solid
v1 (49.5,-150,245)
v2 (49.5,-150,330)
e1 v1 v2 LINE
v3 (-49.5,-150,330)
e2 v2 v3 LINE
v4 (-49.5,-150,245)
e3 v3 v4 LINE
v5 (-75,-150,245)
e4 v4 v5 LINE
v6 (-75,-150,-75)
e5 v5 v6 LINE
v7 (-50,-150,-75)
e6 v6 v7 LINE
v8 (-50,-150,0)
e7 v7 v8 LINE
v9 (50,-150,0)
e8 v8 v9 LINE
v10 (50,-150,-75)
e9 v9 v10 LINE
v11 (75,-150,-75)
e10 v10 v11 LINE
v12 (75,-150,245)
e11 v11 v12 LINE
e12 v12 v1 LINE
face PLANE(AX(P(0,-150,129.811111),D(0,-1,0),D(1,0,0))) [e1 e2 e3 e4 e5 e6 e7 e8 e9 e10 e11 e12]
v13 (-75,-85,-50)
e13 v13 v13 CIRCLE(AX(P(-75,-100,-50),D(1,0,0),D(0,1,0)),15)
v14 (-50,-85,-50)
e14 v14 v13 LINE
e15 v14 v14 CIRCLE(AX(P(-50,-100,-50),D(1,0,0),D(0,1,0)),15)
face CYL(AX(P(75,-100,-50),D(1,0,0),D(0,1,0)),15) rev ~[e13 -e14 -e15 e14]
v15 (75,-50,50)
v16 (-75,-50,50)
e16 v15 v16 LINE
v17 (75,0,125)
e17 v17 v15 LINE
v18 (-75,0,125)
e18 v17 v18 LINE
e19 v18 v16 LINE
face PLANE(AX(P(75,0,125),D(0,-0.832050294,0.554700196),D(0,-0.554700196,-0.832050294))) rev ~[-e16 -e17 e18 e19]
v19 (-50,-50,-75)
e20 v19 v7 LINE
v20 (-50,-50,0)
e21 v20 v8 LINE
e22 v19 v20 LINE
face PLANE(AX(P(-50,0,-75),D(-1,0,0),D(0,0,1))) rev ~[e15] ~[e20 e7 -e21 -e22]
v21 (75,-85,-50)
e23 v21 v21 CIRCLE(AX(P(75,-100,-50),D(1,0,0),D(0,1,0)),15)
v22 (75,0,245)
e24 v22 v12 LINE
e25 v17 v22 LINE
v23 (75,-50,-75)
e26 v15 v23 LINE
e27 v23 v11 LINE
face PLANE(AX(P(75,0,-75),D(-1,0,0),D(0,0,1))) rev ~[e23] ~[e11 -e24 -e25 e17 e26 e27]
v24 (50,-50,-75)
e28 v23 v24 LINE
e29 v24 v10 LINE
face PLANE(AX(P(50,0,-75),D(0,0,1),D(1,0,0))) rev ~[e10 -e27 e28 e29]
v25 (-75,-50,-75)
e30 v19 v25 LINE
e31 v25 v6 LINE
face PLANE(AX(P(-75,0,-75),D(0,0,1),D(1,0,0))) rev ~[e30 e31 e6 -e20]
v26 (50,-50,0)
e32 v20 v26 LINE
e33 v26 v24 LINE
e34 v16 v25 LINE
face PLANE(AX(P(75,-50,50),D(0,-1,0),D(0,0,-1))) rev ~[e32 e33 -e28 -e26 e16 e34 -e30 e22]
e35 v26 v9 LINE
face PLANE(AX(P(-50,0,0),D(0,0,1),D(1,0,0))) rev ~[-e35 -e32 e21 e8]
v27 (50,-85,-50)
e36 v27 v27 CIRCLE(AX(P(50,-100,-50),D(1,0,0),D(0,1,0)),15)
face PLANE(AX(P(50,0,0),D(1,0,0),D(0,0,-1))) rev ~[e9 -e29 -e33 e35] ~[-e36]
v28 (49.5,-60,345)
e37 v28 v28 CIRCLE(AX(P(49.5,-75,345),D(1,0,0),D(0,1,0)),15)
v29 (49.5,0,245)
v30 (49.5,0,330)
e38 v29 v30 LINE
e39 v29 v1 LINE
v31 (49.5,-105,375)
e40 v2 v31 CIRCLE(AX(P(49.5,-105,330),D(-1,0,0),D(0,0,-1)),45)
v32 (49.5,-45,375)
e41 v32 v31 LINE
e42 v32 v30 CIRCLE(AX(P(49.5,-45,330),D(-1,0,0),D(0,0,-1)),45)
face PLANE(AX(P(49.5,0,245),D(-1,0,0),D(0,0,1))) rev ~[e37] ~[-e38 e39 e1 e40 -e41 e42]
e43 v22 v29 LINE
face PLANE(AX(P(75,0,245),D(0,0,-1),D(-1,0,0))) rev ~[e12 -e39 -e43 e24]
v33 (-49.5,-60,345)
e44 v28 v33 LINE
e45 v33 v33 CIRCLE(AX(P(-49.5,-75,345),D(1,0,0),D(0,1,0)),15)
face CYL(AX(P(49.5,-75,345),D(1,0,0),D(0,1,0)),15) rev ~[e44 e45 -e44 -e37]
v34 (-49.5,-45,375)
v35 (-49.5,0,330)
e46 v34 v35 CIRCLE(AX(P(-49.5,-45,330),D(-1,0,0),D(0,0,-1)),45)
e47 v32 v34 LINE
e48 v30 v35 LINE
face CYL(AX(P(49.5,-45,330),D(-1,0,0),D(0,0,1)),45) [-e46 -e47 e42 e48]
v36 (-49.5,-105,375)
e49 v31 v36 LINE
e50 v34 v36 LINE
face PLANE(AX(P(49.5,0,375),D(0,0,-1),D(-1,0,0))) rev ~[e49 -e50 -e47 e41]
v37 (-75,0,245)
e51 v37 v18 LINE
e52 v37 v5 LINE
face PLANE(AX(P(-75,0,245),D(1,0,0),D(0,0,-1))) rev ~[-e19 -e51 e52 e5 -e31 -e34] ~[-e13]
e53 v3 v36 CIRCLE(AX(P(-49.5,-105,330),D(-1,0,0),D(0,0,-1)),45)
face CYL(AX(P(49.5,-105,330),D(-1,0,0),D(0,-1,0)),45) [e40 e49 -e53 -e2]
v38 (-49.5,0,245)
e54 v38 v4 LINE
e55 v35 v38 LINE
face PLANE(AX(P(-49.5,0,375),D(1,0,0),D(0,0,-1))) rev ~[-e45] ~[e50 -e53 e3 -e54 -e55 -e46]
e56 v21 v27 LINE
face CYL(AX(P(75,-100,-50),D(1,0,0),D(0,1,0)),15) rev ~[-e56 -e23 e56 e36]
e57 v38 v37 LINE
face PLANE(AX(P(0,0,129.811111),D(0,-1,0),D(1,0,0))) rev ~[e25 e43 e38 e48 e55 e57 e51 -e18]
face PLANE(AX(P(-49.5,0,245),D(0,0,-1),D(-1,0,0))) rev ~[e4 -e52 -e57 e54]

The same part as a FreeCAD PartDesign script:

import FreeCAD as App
import Part
import Sketcher


def edges_at(feature, points):
    """Names of the edges that pass closest to the given points."""
    edges = feature.Shape.Edges
    near = lambda p: min(range(len(edges)), key=lambda i: edges[i].distToShape(Part.Vertex(*p))[0])
    return sorted({f"Edge{near(p) + 1}" for p in points})

doc = App.newDocument("Part")
body = doc.addObject("PartDesign::Body", "Body")

# Sketch on XZ plane
sketch1 = body.newObject("Sketcher::SketchObject", "Sketch")
sketch1.AttachmentSupport = (doc.getObject("XZ_Plane"), [""])
sketch1.MapMode = "FlatFace"
sketch1.addGeometry([
    Part.LineSegment(App.Vector(-50, 0, 0), App.Vector(50, 0, 0)),  # 0
    Part.LineSegment(App.Vector(50, 0, 0), App.Vector(50, -75, 0)),  # 1
    Part.LineSegment(App.Vector(50, -75, 0), App.Vector(75, -75, 0)),  # 2
    Part.LineSegment(App.Vector(75, -75, 0), App.Vector(75, 245, 0)),  # 3
    Part.LineSegment(App.Vector(75, 245, 0), App.Vector(50, 245, 0)),  # 4
    Part.LineSegment(App.Vector(50, 245, 0), App.Vector(50, 375, 0)),  # 5
    Part.LineSegment(App.Vector(50, 375, 0), App.Vector(-50, 375, 0)),  # 6
    Part.LineSegment(App.Vector(-50, 375, 0), App.Vector(-50, 245, 0)),  # 7
    Part.LineSegment(App.Vector(-50, 245, 0), App.Vector(-75, 245, 0)),  # 8
    Part.LineSegment(App.Vector(-75, 245, 0), App.Vector(-75, -75, 0)),  # 9
    Part.LineSegment(App.Vector(-75, -75, 0), App.Vector(-50, -75, 0)),  # 10
    Part.LineSegment(App.Vector(-50, -75, 0), App.Vector(-50, 0, 0)),  # 11
], False)
sketch1.addConstraint([
    Sketcher.Constraint("Coincident", 0, 2, 1, 1),
    Sketcher.Constraint("Coincident", 1, 2, 2, 1),
    Sketcher.Constraint("Coincident", 2, 2, 3, 1),
    Sketcher.Constraint("Coincident", 3, 2, 4, 1),
    Sketcher.Constraint("Coincident", 4, 2, 5, 1),
    Sketcher.Constraint("Coincident", 5, 2, 6, 1),
    Sketcher.Constraint("Coincident", 6, 2, 7, 1),
    Sketcher.Constraint("Coincident", 7, 2, 8, 1),
    Sketcher.Constraint("Coincident", 8, 2, 9, 1),
    Sketcher.Constraint("Coincident", 9, 2, 10, 1),
    Sketcher.Constraint("Coincident", 10, 2, 11, 1),
    Sketcher.Constraint("Coincident", 11, 2, 0, 1),
    Sketcher.Constraint("Horizontal", 0),
    Sketcher.Constraint("Vertical", 1),
    Sketcher.Constraint("Horizontal", 2),
    Sketcher.Constraint("Vertical", 3),
    Sketcher.Constraint("Horizontal", 4),
    Sketcher.Constraint("Vertical", 5),
    Sketcher.Constraint("Horizontal", 6),
    Sketcher.Constraint("Vertical", 7),
    Sketcher.Constraint("Horizontal", 8),
    Sketcher.Constraint("Vertical", 9),
    Sketcher.Constraint("Horizontal", 10),
    Sketcher.Constraint("Vertical", 11),
    Sketcher.Constraint("Symmetric", 0, 2, 11, 2, -1, 1),
    Sketcher.Constraint("Symmetric", 4, 2, 7, 2, -2),
    Sketcher.Constraint("Symmetric", 2, 2, 9, 2, -2),
    Sketcher.Constraint("DistanceX", 0, 1, 0, 2, 100.0),
    Sketcher.Constraint("DistanceX", 2, 1, 2, 2, 25.0),
    Sketcher.Constraint("DistanceX", 6, 2, 6, 1, 99.0),
    Sketcher.Constraint("DistanceY", 1, 2, 1, 1, 75.0),
    Sketcher.Constraint("DistanceY", 3, 1, 3, 2, 320.0),
    Sketcher.Constraint("DistanceY", 5, 1, 5, 2, 130.0),
])
pad1 = body.newObject("PartDesign::Pad", "Pad")
pad1.Profile = sketch1
pad1.Length = 150

# Sketch on YZ plane
sketch2 = body.newObject("Sketcher::SketchObject", "Sketch001")
sketch2.AttachmentSupport = (doc.getObject("YZ_Plane"), [""])
sketch2.MapMode = "FlatFace"
sketch2.AttachmentOffset = App.Placement(App.Vector(0, 0, 75), App.Rotation())
sketch2.addGeometry([
    Part.LineSegment(App.Vector(-50, 50, 0), App.Vector(-50, -75, 0)),
    Part.LineSegment(App.Vector(-50, -75, 0), App.Vector(0, -75, 0)),
    Part.LineSegment(App.Vector(0, -75, 0), App.Vector(0, 125, 0)),
    Part.LineSegment(App.Vector(0, 125, 0), App.Vector(-50, 50, 0)),
], False)
sketch2.addConstraint([
    Sketcher.Constraint("Coincident", 0, 2, 1, 1),
    Sketcher.Constraint("Coincident", 1, 2, 2, 1),
    Sketcher.Constraint("Coincident", 2, 2, 3, 1),
    Sketcher.Constraint("Coincident", 3, 2, 0, 1),
    Sketcher.Constraint("Vertical", 0),
    Sketcher.Constraint("Horizontal", 1),
    Sketcher.Constraint("Vertical", 2),
    Sketcher.Constraint("PointOnObject", 1, 2, -2),
    Sketcher.Constraint("DistanceX", 1, 1, 1, 2, 50.0),
    Sketcher.Constraint("DistanceY", 0, 2, 0, 1, 125.0),
    Sketcher.Constraint("DistanceY", 2, 1, 2, 2, 200.0),
    Sketcher.Constraint("DistanceY", 0, 2, -1, 1, 75.0),
])
pocket1 = body.newObject("PartDesign::Pocket", "Pocket")
pocket1.Profile = sketch2
pocket1.Length = 188
doc.recompute()

fillet = body.newObject("PartDesign::Fillet", "Fillet")
fillet.Base = (pocket1, edges_at(pocket1, [(0, -150, 375), (0, 0, 375)]))
fillet.Radius = 45

# Sketch on YZ plane
sketch3 = body.newObject("Sketcher::SketchObject", "Sketch002")
sketch3.AttachmentSupport = (doc.getObject("YZ_Plane"), [""])
sketch3.MapMode = "FlatFace"
sketch3.AttachmentOffset = App.Placement(App.Vector(0, 0, 49.5), App.Rotation())
sketch3.addGeometry(Part.Circle(App.Vector(-75, 345, 0), App.Vector(0, 0, 1), 15), False)
sketch3.addConstraint([
    Sketcher.Constraint("Diameter", 0, 30.0),
    Sketcher.Constraint("DistanceX", 0, 3, -1, 1, 75.0),
    Sketcher.Constraint("DistanceY", -1, 1, 0, 3, 345.0),
])
pocket2 = body.newObject("PartDesign::Pocket", "Pocket001")
pocket2.Profile = sketch3
pocket2.Length = 133

# Sketch on YZ plane
sketch4 = body.newObject("Sketcher::SketchObject", "Sketch003")
sketch4.AttachmentSupport = (doc.getObject("YZ_Plane"), [""])
sketch4.MapMode = "FlatFace"
sketch4.AttachmentOffset = App.Placement(App.Vector(0, 0, 75), App.Rotation())
sketch4.addGeometry(Part.Circle(App.Vector(-100, -50, 0), App.Vector(0, 0, 1), 15), False)
sketch4.addConstraint([
    Sketcher.Constraint("Diameter", 0, 30.0),
    Sketcher.Constraint("DistanceX", 0, 3, -1, 1, 100.0),
    Sketcher.Constraint("DistanceY", 0, 3, -1, 1, 50.0),
])
pocket3 = body.newObject("PartDesign::Pocket", "Pocket002")
pocket3.Profile = sketch4
pocket3.Length = 179

doc.recompute()
